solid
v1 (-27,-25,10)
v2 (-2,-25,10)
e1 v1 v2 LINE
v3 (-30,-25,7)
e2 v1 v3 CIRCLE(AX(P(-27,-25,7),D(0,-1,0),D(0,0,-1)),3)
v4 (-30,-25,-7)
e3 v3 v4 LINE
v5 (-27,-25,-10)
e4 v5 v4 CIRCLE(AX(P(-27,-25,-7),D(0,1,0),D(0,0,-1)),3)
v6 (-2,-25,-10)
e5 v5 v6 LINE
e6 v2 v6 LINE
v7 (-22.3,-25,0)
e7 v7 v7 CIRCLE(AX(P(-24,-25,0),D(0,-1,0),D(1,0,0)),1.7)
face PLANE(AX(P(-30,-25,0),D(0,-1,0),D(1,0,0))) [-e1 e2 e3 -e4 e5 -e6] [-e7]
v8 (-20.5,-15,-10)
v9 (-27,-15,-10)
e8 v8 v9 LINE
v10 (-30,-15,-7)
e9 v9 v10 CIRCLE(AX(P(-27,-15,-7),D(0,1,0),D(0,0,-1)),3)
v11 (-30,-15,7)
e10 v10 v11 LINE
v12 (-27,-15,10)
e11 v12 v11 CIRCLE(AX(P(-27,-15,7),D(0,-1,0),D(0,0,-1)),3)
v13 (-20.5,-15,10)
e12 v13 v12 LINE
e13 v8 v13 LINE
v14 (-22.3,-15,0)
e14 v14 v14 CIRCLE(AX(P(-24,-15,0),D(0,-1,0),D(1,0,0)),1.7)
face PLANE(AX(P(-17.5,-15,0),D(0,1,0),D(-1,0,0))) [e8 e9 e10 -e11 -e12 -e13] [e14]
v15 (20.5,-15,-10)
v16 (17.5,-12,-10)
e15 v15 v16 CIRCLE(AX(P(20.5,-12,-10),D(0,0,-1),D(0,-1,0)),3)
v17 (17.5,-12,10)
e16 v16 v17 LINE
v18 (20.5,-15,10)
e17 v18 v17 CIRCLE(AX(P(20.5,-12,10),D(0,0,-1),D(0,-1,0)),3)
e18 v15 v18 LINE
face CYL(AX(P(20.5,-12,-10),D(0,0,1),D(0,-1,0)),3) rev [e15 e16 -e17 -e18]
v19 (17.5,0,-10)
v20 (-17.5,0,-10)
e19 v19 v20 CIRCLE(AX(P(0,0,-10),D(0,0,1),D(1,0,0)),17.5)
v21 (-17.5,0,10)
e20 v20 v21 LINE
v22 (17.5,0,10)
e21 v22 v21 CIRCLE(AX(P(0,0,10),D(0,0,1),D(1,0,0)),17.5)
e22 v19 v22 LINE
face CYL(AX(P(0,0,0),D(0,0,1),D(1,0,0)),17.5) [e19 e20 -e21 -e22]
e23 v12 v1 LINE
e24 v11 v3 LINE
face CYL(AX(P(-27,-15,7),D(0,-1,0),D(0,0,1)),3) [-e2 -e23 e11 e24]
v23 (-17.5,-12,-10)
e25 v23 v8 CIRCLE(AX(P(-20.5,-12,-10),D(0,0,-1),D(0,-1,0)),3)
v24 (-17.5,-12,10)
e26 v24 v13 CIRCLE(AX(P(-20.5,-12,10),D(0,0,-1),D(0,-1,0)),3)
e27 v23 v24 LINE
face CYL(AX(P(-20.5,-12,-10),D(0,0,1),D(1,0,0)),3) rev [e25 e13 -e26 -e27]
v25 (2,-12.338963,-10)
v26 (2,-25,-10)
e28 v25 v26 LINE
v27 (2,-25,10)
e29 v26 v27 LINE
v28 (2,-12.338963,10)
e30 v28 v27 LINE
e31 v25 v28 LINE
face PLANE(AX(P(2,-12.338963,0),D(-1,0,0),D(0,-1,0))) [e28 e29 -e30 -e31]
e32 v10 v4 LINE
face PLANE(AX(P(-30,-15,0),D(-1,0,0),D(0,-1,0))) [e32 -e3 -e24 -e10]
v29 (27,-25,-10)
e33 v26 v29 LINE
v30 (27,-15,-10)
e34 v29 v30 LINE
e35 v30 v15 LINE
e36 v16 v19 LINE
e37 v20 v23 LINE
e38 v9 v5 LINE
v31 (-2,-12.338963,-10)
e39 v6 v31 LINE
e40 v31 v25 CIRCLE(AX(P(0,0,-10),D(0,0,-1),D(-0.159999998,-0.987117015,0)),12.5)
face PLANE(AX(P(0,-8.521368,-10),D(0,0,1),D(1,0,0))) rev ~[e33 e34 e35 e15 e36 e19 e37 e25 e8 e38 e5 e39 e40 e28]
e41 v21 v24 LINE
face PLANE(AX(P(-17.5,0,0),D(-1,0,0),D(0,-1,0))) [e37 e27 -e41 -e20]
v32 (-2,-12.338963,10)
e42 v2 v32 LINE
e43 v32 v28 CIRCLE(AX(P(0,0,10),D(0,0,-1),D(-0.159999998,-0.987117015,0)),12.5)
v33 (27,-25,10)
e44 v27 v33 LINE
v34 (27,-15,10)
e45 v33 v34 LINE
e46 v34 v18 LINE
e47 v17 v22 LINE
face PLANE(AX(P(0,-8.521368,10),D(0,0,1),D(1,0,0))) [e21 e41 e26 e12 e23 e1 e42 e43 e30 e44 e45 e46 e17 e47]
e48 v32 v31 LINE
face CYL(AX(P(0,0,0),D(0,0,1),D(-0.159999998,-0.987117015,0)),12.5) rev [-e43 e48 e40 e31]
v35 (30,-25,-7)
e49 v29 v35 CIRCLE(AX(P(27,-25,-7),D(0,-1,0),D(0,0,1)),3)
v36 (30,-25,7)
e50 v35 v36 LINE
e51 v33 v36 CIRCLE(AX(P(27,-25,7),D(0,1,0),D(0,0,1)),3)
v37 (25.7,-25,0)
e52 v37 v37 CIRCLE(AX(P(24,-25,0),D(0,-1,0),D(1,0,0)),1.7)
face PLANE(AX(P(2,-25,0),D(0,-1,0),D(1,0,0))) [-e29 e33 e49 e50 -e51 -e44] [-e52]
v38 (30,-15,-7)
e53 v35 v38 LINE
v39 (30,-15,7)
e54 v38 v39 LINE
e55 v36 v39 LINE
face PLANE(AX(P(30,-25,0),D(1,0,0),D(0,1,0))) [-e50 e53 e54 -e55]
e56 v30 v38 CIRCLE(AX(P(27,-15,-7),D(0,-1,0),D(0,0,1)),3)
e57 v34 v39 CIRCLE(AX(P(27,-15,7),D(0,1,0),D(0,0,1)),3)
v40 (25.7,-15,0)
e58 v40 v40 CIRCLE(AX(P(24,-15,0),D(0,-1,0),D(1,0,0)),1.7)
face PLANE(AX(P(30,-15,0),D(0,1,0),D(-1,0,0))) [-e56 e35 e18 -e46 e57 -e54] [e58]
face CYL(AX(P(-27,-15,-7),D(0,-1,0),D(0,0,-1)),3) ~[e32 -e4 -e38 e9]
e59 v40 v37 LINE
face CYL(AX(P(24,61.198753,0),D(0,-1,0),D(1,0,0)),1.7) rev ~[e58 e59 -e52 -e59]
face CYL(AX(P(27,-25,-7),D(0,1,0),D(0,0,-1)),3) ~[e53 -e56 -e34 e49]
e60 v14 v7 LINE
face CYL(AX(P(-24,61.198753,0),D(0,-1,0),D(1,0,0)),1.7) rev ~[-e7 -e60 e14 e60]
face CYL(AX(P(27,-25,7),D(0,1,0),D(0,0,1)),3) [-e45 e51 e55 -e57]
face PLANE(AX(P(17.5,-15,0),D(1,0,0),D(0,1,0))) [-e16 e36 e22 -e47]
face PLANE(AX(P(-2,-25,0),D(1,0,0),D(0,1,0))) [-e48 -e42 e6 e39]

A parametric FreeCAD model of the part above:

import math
import FreeCAD as App
import Part
import Sketcher


def edges_at(feature, points):
    """Names of the edges that pass closest to the given points."""
    edges = feature.Shape.Edges
    near = lambda p: min(range(len(edges)), key=lambda i: edges[i].distToShape(Part.Vertex(*p))[0])
    return sorted({f"Edge{near(p) + 1}" for p in points})

doc = App.newDocument("Part")
body = doc.addObject("PartDesign::Body", "Body")

sketch1 = body.newObject("Sketcher::SketchObject", "Sketch")
sketch1.AttachmentSupport = (doc.getObject("XY_Plane"), [""])
sketch1.MapMode = "FlatFace"
sketch1.addGeometry(Part.ArcOfCircle(Part.Circle(App.Vector(0, 0, 0), App.Vector(0, 0, 1), 12.5), math.radians(-80.793104), math.radians(260.793104)), False)
sketch1.addGeometry(Part.LineSegment(App.Vector(2, -12.338963, 0), App.Vector(2, -25, 0)), False)
sketch1.addGeometry(Part.LineSegment(App.Vector(2, -25, 0), App.Vector(30, -25, 0)), False)
sketch1.addGeometry(Part.LineSegment(App.Vector(30, -25, 0), App.Vector(30, -15, 0)), False)
sketch1.addGeometry(Part.LineSegment(App.Vector(30, -15, 0), App.Vector(17.5, -15, 0)), False)
sketch1.addGeometry(Part.LineSegment(App.Vector(17.5, -15, 0), App.Vector(17.5, 0, 0)), False)
sketch1.addGeometry(Part.ArcOfCircle(Part.Circle(App.Vector(0, 0, 0), App.Vector(0, 0, 1), 17.5), math.radians(0), math.radians(180)), False)
sketch1.addGeometry(Part.LineSegment(App.Vector(-17.5, 0, 0), App.Vector(-17.5, -15, 0)), False)
sketch1.addGeometry(Part.LineSegment(App.Vector(-17.5, -15, 0), App.Vector(-30, -15, 0)), False)
sketch1.addGeometry(Part.LineSegment(App.Vector(-30, -15, 0), App.Vector(-30, -25, 0)), False)
sketch1.addGeometry(Part.LineSegment(App.Vector(-30, -25, 0), App.Vector(-2, -25, 0)), False)
sketch1.addGeometry(Part.LineSegment(App.Vector(-2, -25, 0), App.Vector(-2, -12.338963, 0)), False)
sketch1.addConstraint(Sketcher.Constraint("Coincident", 0, 1, 1, 1))
sketch1.addConstraint(Sketcher.Constraint("Coincident", 1, 2, 2, 1))
sketch1.addConstraint(Sketcher.Constraint("Coincident", 2, 2, 3, 1))
sketch1.addConstraint(Sketcher.Constraint("Coincident", 3, 2, 4, 1))
sketch1.addConstraint(Sketcher.Constraint("Coincident", 4, 2, 5, 1))
sketch1.addConstraint(Sketcher.Constraint("Tangent", 5, 2, 6, 1))
sketch1.addConstraint(Sketcher.Constraint("Tangent", 6, 2, 7, 1))
sketch1.addConstraint(Sketcher.Constraint("Coincident", 7, 2, 8, 1))
sketch1.addConstraint(Sketcher.Constraint("Coincident", 8, 2, 9, 1))
sketch1.addConstraint(Sketcher.Constraint("Coincident", 9, 2, 10, 1))
sketch1.addConstraint(Sketcher.Constraint("Coincident", 10, 2, 11, 1))
sketch1.addConstraint(Sketcher.Constraint("Coincident", 11, 2, 0, 2))
sketch1.addConstraint(Sketcher.Constraint("Vertical", 1))
sketch1.addConstraint(Sketcher.Constraint("Horizontal", 2))
sketch1.addConstraint(Sketcher.Constraint("Vertical", 3))
sketch1.addConstraint(Sketcher.Constraint("Horizontal", 4))
sketch1.addConstraint(Sketcher.Constraint("Vertical", 5))
sketch1.addConstraint(Sketcher.Constraint("Vertical", 7))
sketch1.addConstraint(Sketcher.Constraint("Horizontal", 8))
sketch1.addConstraint(Sketcher.Constraint("Vertical", 9))
sketch1.addConstraint(Sketcher.Constraint("Horizontal", 10))
sketch1.addConstraint(Sketcher.Constraint("Vertical", 11))
sketch1.addConstraint(Sketcher.Constraint("Coincident", 0, 3, -1, 1))
sketch1.addConstraint(Sketcher.Constraint("Coincident", 6, 3, -1, 1))
sketch1.addConstraint(Sketcher.Constraint("Symmetric", 3, 2, 8, 2, -2))
sketch1.addConstraint(Sketcher.Constraint("Symmetric", 1, 2, 10, 2, -2))
sketch1.addConstraint(Sketcher.Constraint("Radius", 0, 12.5))
sketch1.addConstraint(Sketcher.Constraint("Radius", 6, 17.5))
sketch1.addConstraint(Sketcher.Constraint("DistanceX", 2, 1, 2, 2, 28.0))
sketch1.addConstraint(Sketcher.Constraint("DistanceY", 3, 1, 3, 2, 10.0))
sketch1.addConstraint(Sketcher.Constraint("DistanceY", 5, 1, 5, 2, 15.0))
sketch1.addConstraint(Sketcher.Constraint("DistanceX", 4, 2, 4, 1, 12.5))
pad1 = body.newObject("PartDesign::Pad", "Pad")
pad1.Profile = sketch1
pad1.Length = 20
pad1.Midplane = True

sketch2 = body.newObject("Sketcher::SketchObject", "Sketch001")
sketch2.AttachmentSupport = (doc.getObject("XZ_Plane"), [""])
sketch2.MapMode = "FlatFace"
sketch2.AttachmentOffset = App.Placement(App.Vector(0, 0, 15), App.Rotation())
sketch2.addGeometry(Part.Circle(App.Vector(-24, 0, 0), App.Vector(0, 0, 1), 1.7), False)
sketch2.addGeometry(Part.Circle(App.Vector(24, 0, 0), App.Vector(0, 0, 1), 1.7), False)
sketch2.addConstraint(Sketcher.Constraint("Equal", 0, 1))
sketch2.addConstraint(Sketcher.Constraint("Symmetric", 0, 3, 1, 3, -1, 1))
sketch2.addConstraint(Sketcher.Constraint("PointOnObject", 0, 3, -1))
sketch2.addConstraint(Sketcher.Constraint("Diameter", 0, 3.4))
sketch2.addConstraint(Sketcher.Constraint("DistanceX", 0, 3, -1, 1, 24.0))
doc.recompute()
hole = body.newObject("PartDesign::Hole", "Hole")
hole.Profile = sketch2
hole.ThreadType = "None"
hole.Diameter = 3.4
hole.DepthType = "ThroughAll"
hole.Reversed = True
doc.recompute()

fillet = body.newObject("PartDesign::Fillet", "Fillet")
fillet.Base = (hole, edges_at(hole, [
    (17.5, -15, 0),
    (-17.5, -15, 0),
    (-30, -20, 10),
    (-30, -20, -10),
    (30, -20, 10),
    (30, -20, -10),
]))
fillet.Radius = 3

doc.recompute()
